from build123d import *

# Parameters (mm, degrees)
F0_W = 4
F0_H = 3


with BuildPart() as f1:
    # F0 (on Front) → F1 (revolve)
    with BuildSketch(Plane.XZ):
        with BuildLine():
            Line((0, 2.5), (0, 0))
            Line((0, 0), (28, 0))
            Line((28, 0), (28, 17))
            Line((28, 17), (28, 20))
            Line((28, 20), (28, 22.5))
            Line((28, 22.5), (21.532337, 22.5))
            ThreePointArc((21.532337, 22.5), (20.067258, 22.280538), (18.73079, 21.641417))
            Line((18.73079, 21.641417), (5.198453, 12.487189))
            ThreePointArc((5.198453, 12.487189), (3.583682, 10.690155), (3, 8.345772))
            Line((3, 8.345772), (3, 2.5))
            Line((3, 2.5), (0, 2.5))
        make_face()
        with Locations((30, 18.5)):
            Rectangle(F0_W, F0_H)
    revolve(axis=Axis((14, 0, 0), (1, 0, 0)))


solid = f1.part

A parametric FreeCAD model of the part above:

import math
import FreeCAD as App
import Part
import Sketcher

doc = App.newDocument("Part")
params = doc.addObject("Spreadsheet::Sheet", "Params")
for row, (alias, value) in enumerate([
    ("sketch1_radius", "5 mm"),
    ("sketch1_width", "28 mm"),
    ("sketch1_width2", "4 mm"),
    ("sketch1_width3", "3 mm"),
    ("sketch1_height", "17 mm"),
    ("revolution_angle", "360 deg"),
], start=1):
    params.set(f"A{row}", alias)
    params.set(f"B{row}", "=" + value)
    params.setAlias(f"B{row}", alias)

body = doc.addObject("PartDesign::Body", "Body")

sketch1 = body.newObject("Sketcher::SketchObject", "Sketch")
sketch1.AttachmentSupport = (doc.getObject("XZ_Plane"), [""])
sketch1.MapMode = "FlatFace"
sketch1.addGeometry([
    Part.LineSegment(App.Vector(0, 2.5, 0), App.Vector(0, 0, 0)),
    Part.LineSegment(App.Vector(0, 0, 0), App.Vector(28, 0, 0)),
    Part.LineSegment(App.Vector(28, 0, 0), App.Vector(28, 17, 0)),
    Part.LineSegment(App.Vector(28, 17, 0), App.Vector(32, 17, 0)),
    Part.LineSegment(App.Vector(32, 17, 0), App.Vector(32, 20, 0)),
    Part.LineSegment(App.Vector(32, 20, 0), App.Vector(28, 20, 0)),
    Part.LineSegment(App.Vector(28, 20, 0), App.Vector(28, 22.5, 0)),
    Part.LineSegment(App.Vector(28, 22.5, 0), App.Vector(21.5, 22.5, 0)),
    Part.ArcOfCircle(Part.Circle(App.Vector(21.5, 17.5, 0), App.Vector(0, 0, 1), 5), math.radians(90), math.radians(124)),
    Part.LineSegment(App.Vector(18.7, 21.6, 0), App.Vector(5.2, 12.5, 0)),
    Part.ArcOfCircle(Part.Circle(App.Vector(8, 8.3, 0), App.Vector(0, 0, 1), 5), math.radians(124), math.radians(180)),
    Part.LineSegment(App.Vector(3, 8.3, 0), App.Vector(3, 2.5, 0)),
    Part.LineSegment(App.Vector(3, 2.5, 0), App.Vector(0, 2.5, 0)),
], False)
sketch1.addConstraint([
    Sketcher.Constraint("Coincident", 0, 2, 1, 1),
    Sketcher.Constraint("Coincident", 1, 2, 2, 1),
    Sketcher.Constraint("Coincident", 2, 2, 3, 1),
    Sketcher.Constraint("Coincident", 3, 2, 4, 1),
    Sketcher.Constraint("Coincident", 4, 2, 5, 1),
    Sketcher.Constraint("Coincident", 5, 2, 6, 1),
    Sketcher.Constraint("Coincident", 6, 2, 7, 1),
    Sketcher.Constraint("Tangent", 7, 2, 8, 1),
    Sketcher.Constraint("Tangent", 8, 2, 9, 1),
    Sketcher.Constraint("Tangent", 9, 2, 10, 1),
    Sketcher.Constraint("Tangent", 10, 2, 11, 1),
    Sketcher.Constraint("Coincident", 11, 2, 12, 1),
    Sketcher.Constraint("Coincident", 12, 2, 0, 1),
    Sketcher.Constraint("Vertical", 0),
    Sketcher.Constraint("Horizontal", 1),
    Sketcher.Constraint("Vertical", 2),
    Sketcher.Constraint("Horizontal", 3),
    Sketcher.Constraint("Vertical", 4),
    Sketcher.Constraint("Horizontal", 5),
    Sketcher.Constraint("Vertical", 6),
    Sketcher.Constraint("Horizontal", 7),
    Sketcher.Constraint("Vertical", 11),
    Sketcher.Constraint("Horizontal", 12),
    Sketcher.Constraint("Coincident", 0, 2, -1, 1),
    Sketcher.Constraint("Vertical", 2, 2, 5, 2),
    Sketcher.Constraint("Equal", 12, 4),
    Sketcher.Constraint("Equal", 0, 6),
    Sketcher.Constraint("Radius", 8, 5.0),
    Sketcher.Constraint("DistanceX", 1, 1, 1, 2, 28.0),
    Sketcher.Constraint("DistanceX", 3, 1, 3, 2, 4.0),
    Sketcher.Constraint("DistanceX", 12, 2, 12, 1, 3.0),
    Sketcher.Constraint("DistanceY", 2, 1, 2, 2, 17.0),
    Sketcher.Constraint("DistanceY", 0, 2, 0, 1, 2.5),
    Sketcher.Constraint("Radius", 10, 5.000003),
    Sketcher.Constraint("Distance", 9, 16.33781),
    Sketcher.Constraint("DistanceX", 7, 2, 7, 1, 6.467663),
])
sketch1.setExpression("Constraints[27]", "Params.sketch1_radius")
sketch1.setExpression("Constraints[28]", "Params.sketch1_width")
sketch1.setExpression("Constraints[29]", "Params.sketch1_width2")
sketch1.setExpression("Constraints[30]", "Params.sketch1_width3")
sketch1.setExpression("Constraints[31]", "Params.sketch1_height")
revolution = body.newObject("PartDesign::Revolution", "Revolution")
revolution.Profile = sketch1
revolution.ReferenceAxis = (sketch1, ["H_Axis"])
revolution.setExpression("Angle", "Params.revolution_angle")

doc.recompute()
